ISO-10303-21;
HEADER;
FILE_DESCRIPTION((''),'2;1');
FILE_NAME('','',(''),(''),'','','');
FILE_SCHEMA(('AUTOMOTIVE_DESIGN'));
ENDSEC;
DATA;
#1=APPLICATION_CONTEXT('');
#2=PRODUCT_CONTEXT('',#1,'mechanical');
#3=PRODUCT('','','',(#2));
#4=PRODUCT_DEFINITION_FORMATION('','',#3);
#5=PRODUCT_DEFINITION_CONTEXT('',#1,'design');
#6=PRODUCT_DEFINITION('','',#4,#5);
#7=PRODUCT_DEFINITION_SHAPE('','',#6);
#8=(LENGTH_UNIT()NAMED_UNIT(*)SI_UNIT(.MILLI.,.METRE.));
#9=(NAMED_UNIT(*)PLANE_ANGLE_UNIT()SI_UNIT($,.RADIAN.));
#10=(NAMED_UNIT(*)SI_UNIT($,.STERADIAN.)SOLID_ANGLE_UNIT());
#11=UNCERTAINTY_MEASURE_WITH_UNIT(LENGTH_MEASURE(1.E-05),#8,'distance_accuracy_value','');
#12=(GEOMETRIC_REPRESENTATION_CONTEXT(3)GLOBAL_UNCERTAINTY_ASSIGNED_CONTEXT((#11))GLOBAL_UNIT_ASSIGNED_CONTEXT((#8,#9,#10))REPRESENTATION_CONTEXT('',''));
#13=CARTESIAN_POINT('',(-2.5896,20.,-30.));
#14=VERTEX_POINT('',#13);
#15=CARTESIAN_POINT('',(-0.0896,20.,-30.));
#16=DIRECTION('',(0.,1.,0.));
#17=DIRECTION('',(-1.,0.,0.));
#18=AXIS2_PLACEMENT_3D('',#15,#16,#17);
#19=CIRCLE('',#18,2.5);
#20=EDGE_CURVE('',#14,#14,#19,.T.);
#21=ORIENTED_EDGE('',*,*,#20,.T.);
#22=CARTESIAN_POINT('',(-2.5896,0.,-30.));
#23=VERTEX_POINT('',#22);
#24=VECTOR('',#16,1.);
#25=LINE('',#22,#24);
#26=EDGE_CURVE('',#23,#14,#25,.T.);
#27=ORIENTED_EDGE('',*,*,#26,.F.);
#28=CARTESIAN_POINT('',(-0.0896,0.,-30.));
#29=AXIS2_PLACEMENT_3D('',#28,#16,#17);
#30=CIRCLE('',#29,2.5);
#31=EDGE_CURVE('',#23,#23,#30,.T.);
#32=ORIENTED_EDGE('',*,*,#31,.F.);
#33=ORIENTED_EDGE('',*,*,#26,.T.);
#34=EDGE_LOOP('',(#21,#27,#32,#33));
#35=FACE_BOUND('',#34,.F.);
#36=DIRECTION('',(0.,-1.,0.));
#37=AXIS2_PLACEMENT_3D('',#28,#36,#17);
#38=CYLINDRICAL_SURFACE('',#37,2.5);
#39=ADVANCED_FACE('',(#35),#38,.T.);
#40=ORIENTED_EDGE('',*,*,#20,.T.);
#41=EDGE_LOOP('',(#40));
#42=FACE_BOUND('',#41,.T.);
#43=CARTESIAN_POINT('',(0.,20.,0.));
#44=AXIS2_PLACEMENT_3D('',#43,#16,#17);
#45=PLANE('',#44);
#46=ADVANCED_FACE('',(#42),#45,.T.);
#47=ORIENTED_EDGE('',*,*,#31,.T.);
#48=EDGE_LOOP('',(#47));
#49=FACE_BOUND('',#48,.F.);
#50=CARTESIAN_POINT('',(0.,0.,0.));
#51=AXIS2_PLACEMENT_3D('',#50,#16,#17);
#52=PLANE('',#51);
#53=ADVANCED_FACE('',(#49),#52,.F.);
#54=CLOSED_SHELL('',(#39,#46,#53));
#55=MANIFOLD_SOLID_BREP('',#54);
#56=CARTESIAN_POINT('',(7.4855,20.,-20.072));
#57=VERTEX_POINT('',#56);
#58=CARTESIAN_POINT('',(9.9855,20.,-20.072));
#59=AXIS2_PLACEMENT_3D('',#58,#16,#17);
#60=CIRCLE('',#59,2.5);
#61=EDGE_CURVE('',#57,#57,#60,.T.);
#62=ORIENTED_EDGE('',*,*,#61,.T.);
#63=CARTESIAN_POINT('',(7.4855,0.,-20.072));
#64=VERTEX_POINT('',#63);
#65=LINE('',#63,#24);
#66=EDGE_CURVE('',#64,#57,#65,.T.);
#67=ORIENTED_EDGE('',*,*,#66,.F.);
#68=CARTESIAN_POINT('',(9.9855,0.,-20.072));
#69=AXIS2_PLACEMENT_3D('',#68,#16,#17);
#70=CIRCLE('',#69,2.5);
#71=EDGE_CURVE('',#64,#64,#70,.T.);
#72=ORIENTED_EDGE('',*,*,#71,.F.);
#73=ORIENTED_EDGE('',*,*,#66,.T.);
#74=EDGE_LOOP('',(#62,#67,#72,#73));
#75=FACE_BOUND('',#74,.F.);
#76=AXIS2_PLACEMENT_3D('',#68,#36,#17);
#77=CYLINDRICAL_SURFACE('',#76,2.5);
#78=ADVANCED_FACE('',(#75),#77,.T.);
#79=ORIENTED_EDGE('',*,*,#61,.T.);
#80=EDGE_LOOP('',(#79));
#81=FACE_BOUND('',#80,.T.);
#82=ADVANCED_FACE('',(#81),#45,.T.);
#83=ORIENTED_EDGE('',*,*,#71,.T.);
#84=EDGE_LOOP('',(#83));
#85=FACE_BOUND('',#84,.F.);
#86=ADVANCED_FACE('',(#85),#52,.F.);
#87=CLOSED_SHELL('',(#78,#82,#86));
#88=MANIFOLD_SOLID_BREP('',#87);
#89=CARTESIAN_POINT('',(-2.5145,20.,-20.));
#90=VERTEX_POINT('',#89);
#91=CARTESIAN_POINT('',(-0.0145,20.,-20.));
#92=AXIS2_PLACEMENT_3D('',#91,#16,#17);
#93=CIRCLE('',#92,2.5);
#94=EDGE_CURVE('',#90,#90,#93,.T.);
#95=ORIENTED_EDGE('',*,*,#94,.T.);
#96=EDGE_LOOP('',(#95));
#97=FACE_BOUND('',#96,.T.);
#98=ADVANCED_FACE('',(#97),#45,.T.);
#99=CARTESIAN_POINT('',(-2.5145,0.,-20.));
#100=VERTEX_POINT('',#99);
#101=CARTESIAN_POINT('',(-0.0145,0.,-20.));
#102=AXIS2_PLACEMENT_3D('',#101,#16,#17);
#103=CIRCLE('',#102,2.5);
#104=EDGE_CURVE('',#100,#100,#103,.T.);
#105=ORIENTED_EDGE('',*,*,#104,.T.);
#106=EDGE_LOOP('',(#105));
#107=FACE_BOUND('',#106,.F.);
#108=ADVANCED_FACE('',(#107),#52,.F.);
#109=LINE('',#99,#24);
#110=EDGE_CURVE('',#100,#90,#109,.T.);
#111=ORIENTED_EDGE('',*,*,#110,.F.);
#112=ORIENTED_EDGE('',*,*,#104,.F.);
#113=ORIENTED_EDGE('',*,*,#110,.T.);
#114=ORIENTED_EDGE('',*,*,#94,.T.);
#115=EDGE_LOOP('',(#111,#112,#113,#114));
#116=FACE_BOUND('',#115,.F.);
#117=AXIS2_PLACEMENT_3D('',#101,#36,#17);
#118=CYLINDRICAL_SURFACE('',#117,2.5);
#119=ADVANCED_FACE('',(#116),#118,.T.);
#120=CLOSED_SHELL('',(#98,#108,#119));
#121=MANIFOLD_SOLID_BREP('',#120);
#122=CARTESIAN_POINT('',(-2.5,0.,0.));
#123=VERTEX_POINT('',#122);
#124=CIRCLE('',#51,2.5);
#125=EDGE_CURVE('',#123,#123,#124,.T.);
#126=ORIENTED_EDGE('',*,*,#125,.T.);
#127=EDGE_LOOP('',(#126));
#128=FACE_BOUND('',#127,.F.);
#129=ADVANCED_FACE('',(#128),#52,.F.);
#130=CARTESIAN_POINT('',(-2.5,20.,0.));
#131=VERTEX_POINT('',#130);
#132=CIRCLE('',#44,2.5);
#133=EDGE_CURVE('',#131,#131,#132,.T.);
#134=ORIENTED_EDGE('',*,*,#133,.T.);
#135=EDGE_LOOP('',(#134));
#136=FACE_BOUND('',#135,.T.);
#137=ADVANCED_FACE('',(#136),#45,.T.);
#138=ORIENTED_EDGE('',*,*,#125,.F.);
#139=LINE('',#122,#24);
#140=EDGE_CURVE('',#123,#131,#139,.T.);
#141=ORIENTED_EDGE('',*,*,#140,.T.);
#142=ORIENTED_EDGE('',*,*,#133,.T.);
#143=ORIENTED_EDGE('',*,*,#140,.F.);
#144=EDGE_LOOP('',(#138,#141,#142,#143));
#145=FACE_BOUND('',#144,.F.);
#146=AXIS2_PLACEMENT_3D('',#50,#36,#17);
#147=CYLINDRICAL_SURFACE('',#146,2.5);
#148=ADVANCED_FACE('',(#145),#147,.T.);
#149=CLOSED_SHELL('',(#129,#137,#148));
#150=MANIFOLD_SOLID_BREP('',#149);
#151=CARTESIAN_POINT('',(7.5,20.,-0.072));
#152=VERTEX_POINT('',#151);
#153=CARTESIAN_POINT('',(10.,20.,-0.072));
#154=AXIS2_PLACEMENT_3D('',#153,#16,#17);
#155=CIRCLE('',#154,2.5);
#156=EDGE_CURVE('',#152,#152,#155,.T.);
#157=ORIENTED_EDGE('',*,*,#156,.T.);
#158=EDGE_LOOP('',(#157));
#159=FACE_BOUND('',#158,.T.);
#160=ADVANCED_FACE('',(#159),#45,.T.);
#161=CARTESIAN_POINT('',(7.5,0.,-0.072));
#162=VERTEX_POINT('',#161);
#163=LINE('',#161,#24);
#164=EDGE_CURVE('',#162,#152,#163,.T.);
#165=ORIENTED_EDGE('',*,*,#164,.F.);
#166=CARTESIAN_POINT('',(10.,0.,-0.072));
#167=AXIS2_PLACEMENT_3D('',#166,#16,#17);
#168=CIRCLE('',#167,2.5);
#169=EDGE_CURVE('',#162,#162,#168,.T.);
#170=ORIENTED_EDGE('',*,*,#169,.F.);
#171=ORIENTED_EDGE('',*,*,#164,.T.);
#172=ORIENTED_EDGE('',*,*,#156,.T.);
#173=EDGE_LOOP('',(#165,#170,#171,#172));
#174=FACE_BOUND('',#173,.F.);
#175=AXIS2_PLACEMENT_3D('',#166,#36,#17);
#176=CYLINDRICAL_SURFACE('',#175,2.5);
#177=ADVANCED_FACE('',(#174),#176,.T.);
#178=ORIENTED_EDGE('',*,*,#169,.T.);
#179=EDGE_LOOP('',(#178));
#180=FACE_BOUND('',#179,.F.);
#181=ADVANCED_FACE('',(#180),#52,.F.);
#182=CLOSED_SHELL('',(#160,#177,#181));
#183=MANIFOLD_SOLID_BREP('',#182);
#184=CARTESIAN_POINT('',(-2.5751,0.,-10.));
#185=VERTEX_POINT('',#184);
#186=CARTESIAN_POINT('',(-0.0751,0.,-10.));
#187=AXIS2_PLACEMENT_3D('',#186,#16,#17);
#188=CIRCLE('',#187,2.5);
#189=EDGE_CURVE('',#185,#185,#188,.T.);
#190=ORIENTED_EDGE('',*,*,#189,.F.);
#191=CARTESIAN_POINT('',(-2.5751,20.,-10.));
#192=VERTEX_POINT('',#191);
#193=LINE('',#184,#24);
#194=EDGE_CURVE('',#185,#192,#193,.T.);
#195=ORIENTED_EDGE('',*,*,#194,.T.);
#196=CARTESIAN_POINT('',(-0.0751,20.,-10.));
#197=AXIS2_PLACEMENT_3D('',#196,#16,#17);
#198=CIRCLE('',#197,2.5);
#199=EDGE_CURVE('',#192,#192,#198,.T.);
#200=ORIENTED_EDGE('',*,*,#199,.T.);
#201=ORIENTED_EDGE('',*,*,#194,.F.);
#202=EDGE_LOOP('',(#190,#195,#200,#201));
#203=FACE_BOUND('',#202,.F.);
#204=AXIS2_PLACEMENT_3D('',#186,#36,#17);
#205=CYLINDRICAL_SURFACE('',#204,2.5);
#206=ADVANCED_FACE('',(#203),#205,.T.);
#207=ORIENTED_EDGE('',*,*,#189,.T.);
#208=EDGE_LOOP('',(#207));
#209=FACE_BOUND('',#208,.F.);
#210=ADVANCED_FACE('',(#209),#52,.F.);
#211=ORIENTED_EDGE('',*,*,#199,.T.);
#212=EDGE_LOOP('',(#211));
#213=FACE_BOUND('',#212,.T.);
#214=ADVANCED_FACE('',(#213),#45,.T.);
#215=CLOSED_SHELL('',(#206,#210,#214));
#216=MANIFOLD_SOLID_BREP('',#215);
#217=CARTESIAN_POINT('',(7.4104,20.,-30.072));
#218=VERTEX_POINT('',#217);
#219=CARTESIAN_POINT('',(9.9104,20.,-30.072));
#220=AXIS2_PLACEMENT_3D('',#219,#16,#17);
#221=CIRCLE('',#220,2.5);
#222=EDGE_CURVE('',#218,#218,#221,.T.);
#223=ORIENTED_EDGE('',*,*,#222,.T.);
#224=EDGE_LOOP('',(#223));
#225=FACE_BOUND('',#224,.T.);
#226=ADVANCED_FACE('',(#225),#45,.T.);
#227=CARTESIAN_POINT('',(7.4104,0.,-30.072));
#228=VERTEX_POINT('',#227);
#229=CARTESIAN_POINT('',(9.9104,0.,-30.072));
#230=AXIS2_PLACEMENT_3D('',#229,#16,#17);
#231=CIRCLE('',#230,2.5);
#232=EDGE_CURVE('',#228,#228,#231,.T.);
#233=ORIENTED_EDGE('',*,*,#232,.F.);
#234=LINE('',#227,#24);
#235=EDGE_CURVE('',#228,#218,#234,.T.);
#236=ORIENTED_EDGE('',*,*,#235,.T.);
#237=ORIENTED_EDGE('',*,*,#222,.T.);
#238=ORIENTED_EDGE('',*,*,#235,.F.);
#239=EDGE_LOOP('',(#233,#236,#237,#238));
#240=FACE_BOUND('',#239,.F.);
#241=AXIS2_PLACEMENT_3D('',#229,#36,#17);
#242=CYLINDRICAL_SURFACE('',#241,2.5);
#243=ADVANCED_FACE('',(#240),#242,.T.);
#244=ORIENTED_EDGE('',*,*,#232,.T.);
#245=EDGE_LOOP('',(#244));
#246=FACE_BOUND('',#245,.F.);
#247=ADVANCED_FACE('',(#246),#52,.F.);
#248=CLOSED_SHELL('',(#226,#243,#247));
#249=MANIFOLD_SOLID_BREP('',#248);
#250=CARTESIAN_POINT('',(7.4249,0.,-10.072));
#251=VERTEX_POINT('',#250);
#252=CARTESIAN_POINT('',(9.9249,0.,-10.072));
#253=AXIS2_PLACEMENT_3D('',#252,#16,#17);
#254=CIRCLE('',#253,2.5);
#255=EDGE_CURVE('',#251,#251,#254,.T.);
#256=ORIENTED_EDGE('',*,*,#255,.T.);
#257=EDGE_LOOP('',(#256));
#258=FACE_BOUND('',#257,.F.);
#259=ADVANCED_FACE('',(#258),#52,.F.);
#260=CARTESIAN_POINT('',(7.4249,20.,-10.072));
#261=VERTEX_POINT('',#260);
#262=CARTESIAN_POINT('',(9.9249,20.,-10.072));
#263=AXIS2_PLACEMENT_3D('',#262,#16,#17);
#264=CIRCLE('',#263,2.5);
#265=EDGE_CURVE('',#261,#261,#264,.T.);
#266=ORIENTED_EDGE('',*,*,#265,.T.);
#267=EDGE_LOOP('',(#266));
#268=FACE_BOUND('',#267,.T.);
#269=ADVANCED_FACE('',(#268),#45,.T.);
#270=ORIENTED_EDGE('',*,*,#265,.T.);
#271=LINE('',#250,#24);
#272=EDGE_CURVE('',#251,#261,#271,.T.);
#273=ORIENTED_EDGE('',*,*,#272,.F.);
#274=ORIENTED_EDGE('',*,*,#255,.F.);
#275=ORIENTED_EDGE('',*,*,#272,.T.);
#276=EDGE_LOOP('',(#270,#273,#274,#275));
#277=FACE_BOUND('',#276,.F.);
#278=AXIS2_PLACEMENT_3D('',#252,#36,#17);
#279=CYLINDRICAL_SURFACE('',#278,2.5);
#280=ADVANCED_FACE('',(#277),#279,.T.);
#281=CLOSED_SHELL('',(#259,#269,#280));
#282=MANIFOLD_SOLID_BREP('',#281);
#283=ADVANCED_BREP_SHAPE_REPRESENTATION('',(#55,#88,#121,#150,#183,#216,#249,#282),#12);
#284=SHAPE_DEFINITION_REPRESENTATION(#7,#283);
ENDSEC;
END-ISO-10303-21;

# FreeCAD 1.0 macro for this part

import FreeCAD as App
import Part
import Sketcher

V = App.Vector

doc = App.newDocument("Part")
body = doc.addObject("PartDesign::Body", "Body")
body.AllowCompound = True

sketch1 = doc.addObject("Sketcher::SketchObject", "Sketch")
body.addObject(sketch1)
sketch1.AttachmentSupport = (doc.XZ_Plane, [""])
sketch1.MapMode = "FlatFace"
sketch1.addGeometry(Part.Circle(V(0, 0, 0), V(0, 0, 1), 2.5), False)
sketch1.addGeometry(Part.Circle(V(10, -0.1, 0), V(0, 0, 1), 2.5), False)
sketch1.addGeometry(Part.Circle(V(-0.1, -10, 0), V(0, 0, 1), 2.5), False)
sketch1.addGeometry(Part.Circle(V(9.9, -10.1, 0), V(0, 0, 1), 2.5), False)
sketch1.addGeometry(Part.Circle(V(0, -20, 0), V(0, 0, 1), 2.5), False)
sketch1.addGeometry(Part.Circle(V(10, -20.1, 0), V(0, 0, 1), 2.5), False)
sketch1.addGeometry(Part.Circle(V(-0.1, -30, 0), V(0, 0, 1), 2.5), False)
sketch1.addGeometry(Part.Circle(V(9.9, -30.1, 0), V(0, 0, 1), 2.5), False)
sketch1.addConstraint(Sketcher.Constraint("Coincident", 0, 3, -1, 1))
sketch1.addConstraint(Sketcher.Constraint("Equal", 0, 1))
sketch1.addConstraint(Sketcher.Constraint("Equal", 1, 2))
sketch1.addConstraint(Sketcher.Constraint("Equal", 2, 3))
sketch1.addConstraint(Sketcher.Constraint("Equal", 3, 4))
sketch1.addConstraint(Sketcher.Constraint("Equal", 4, 5))
sketch1.addConstraint(Sketcher.Constraint("Equal", 5, 6))
sketch1.addConstraint(Sketcher.Constraint("Equal", 6, 7))
sketch1.addConstraint(Sketcher.Constraint("Diameter", 0, 5.0))
sketch1.addConstraint(Sketcher.Constraint("DistanceX", -1, 1, 1, 3, 10.0))
sketch1.addConstraint(Sketcher.Constraint("DistanceY", 2, 3, -1, 1, 10.0))
sketch1.addConstraint(Sketcher.Constraint("DistanceX", 2, 3, 3, 3, 10.0))
sketch1.addConstraint(Sketcher.Constraint("DistanceY", 3, 3, 1, 3, 10.0))
sketch1.addConstraint(Sketcher.Constraint("DistanceY", 4, 3, 2, 3, 10.0))
sketch1.addConstraint(Sketcher.Constraint("DistanceY", 5, 3, 3, 3, 10.0))
sketch1.addConstraint(Sketcher.Constraint("DistanceX", 4, 3, 5, 3, 10.0))
sketch1.addConstraint(Sketcher.Constraint("DistanceY", 6, 3, 4, 3, 10.0))
sketch1.addConstraint(Sketcher.Constraint("DistanceX", 6, 3, 7, 3, 10.0))
sketch1.addConstraint(Sketcher.Constraint("DistanceY", 7, 3, 5, 3, 10.0))
sketch1.addConstraint(Sketcher.Constraint("DistanceY", 1, 3, -1, 1, 0.072))
sketch1.addConstraint(Sketcher.Constraint("DistanceX", 2, 3, -1, 1, 0.075))
sketch1.addConstraint(Sketcher.Constraint("DistanceX", 6, 3, 4, 3, 0.075))
sketch1.addConstraint(Sketcher.Constraint("DistanceX", 4, 3, -1, 1, 0.0145))
pad1 = doc.addObject("PartDesign::Pad", "Pad")
body.addObject(pad1)
pad1.Profile = sketch1
pad1.Length = 20
pad1.Reversed = True

doc.recompute()
